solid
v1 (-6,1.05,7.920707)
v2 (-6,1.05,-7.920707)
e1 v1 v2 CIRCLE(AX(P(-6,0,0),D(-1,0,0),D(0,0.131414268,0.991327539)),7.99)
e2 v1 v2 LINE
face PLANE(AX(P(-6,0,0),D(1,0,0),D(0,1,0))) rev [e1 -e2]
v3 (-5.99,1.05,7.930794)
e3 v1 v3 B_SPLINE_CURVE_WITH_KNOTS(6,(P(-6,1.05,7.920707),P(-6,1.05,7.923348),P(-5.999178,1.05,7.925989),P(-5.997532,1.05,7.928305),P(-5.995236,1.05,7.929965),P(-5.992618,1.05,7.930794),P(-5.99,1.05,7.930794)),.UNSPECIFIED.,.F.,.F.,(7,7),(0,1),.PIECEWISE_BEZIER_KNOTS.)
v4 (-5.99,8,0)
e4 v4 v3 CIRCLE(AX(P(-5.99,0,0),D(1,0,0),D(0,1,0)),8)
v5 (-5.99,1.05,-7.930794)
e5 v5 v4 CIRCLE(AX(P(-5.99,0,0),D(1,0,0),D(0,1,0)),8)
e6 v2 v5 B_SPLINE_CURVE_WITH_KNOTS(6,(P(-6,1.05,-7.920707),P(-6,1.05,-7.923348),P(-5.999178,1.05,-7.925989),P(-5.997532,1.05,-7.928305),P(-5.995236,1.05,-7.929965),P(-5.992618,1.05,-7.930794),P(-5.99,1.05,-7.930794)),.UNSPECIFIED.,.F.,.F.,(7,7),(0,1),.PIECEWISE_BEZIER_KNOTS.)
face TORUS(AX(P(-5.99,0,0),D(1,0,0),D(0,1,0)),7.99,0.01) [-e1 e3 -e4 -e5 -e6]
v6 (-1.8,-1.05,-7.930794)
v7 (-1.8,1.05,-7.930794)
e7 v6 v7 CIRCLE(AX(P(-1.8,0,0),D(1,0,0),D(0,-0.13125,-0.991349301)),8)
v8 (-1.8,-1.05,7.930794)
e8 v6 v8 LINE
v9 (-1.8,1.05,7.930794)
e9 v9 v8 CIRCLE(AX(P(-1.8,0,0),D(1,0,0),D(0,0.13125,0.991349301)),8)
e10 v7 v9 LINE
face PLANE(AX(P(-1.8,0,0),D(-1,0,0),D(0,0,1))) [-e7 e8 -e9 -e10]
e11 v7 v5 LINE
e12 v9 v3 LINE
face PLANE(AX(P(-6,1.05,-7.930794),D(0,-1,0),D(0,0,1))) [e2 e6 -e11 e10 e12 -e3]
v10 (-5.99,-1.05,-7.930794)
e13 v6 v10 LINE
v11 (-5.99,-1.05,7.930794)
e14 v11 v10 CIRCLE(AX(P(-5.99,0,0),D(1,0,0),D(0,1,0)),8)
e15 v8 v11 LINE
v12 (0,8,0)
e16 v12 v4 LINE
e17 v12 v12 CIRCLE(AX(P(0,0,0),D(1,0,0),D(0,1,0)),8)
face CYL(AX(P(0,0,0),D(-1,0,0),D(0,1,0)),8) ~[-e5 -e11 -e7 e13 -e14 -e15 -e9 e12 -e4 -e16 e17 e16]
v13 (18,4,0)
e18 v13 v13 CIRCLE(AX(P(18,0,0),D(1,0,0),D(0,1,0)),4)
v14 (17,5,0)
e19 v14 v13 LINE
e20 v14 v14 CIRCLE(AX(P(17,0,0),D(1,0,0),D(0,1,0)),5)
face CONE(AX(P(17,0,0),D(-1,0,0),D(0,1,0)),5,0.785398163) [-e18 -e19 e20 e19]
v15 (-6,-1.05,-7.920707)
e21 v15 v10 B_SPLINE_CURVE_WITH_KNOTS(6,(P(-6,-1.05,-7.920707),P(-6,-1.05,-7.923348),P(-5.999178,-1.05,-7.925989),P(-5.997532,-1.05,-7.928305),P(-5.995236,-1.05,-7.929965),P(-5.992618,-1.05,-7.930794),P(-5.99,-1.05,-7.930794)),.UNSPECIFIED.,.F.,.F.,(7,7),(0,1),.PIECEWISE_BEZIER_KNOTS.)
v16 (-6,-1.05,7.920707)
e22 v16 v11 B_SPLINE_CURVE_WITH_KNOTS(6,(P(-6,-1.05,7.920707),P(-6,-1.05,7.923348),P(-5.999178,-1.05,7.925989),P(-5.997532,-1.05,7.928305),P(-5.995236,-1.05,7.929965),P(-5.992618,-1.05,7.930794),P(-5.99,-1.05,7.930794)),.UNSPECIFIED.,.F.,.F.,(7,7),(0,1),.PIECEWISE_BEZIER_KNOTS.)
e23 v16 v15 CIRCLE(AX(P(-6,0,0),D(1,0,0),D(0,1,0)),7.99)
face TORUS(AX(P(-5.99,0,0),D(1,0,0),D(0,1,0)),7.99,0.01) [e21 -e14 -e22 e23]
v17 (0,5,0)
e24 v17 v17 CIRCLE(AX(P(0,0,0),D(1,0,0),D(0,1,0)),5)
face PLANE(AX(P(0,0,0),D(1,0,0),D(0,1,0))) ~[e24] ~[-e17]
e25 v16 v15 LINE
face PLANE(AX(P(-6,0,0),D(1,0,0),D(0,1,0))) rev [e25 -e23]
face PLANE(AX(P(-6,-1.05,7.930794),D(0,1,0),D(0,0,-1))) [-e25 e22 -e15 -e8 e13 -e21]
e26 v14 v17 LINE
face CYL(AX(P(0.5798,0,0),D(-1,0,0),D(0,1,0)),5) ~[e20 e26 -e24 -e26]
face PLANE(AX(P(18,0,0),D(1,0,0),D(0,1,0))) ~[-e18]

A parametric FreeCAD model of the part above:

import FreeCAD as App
import Part
import Sketcher
Q = App.Units.Quantity


def edges_at(feature, points):
    """Names of the edges that pass closest to the given points."""
    edges = feature.Shape.Edges
    near = lambda p: min(range(len(edges)), key=lambda i: edges[i].distToShape(Part.Vertex(*p))[0])
    return sorted({f"Edge{near(p) + 1}" for p in points})


def add_polygon(sketch, points):
    """Adds a closed chain of lines whose ends are joined by coincident constraints."""
    first, n = sketch.GeometryCount, len(points)
    for a, b in zip(points, points[1:] + points[:1]):
        sketch.addGeometry(Part.LineSegment(App.Vector(*a, 0), App.Vector(*b, 0)), False)
    for i in range(n):
        sketch.addConstraint(Sketcher.Constraint("Coincident", first + i, 2, first + (i + 1) % n, 1))

doc = App.newDocument("Part")
body = doc.addObject("PartDesign::Body", "Body")

# Sketch on XY plane
sketch1 = body.newObject("Sketcher::SketchObject", "Sketch")
sketch1.AttachmentSupport = (doc.getObject("XY_Plane"), [""])
sketch1.MapMode = "FlatFace"
add_polygon(sketch1, [(-6, 8), (-6, 0), (18, 0), (18, 5), (0, 5), (0, 8)])  # lines 0-5
sketch1.addConstraint(Sketcher.Constraint("Vertical", 0))
sketch1.addConstraint(Sketcher.Constraint("Horizontal", 1))
sketch1.addConstraint(Sketcher.Constraint("Vertical", 2))
sketch1.addConstraint(Sketcher.Constraint("Horizontal", 3))
sketch1.addConstraint(Sketcher.Constraint("Vertical", 4))
sketch1.addConstraint(Sketcher.Constraint("Horizontal", 5))
sketch1.addConstraint(Sketcher.Constraint("PointOnObject", 0, 2, -1))
sketch1.addConstraint(Sketcher.Constraint("PointOnObject", 3, 2, -2))
sketch1.addConstraint(Sketcher.Constraint("DistanceX", 3, 2, 3, 1, Q("18 mm")))
sketch1.addConstraint(Sketcher.Constraint("DistanceX", 5, 2, 5, 1, Q("6 mm")))
sketch1.addConstraint(Sketcher.Constraint("DistanceY", 0, 2, 0, 1, Q("8 mm")))
sketch1.addConstraint(Sketcher.Constraint("DistanceY", 2, 1, 2, 2, Q("5 mm")))
revolution = body.newObject("PartDesign::Revolution", "Revolution")
revolution.Profile = sketch1
revolution.ReferenceAxis = (sketch1, ["H_Axis"])
revolution.Angle = 360
doc.recompute()

fillet = body.newObject("PartDesign::Fillet", "Fillet")
fillet.Base = (revolution, edges_at(revolution, [(-6, -8, 0)]))
fillet.Radius = 0.01

# Sketch on YZ plane
sketch2 = body.newObject("Sketcher::SketchObject", "Sketch001")
sketch2.AttachmentSupport = (doc.getObject("YZ_Plane"), [""])
sketch2.MapMode = "FlatFace"
sketch2.AttachmentOffset = App.Placement(App.Vector(0, 0, -6), App.Rotation())
add_polygon(sketch2, [(-1.1, 8), (1.1, 8), (1.1, -8), (-1.1, -8)])  # lines 0-3
sketch2.addConstraint(Sketcher.Constraint("Horizontal", 0))
sketch2.addConstraint(Sketcher.Constraint("Vertical", 1))
sketch2.addConstraint(Sketcher.Constraint("Horizontal", 2))
sketch2.addConstraint(Sketcher.Constraint("Vertical", 3))
sketch2.addConstraint(Sketcher.Constraint("Symmetric", 0, 2, 2, 2, -1, 1))
sketch2.addConstraint(Sketcher.Constraint("DistanceY", 1, 2, 1, 1, Q("16 mm")))
sketch2.addConstraint(Sketcher.Constraint("DistanceX", 0, 1, 0, 2, Q("2.1 mm")))
pocket1 = body.newObject("PartDesign::Pocket", "Pocket")
pocket1.Profile = sketch2
pocket1.Length = 4.2
pocket1.Reversed = True
doc.recompute()

chamfer = body.newObject("PartDesign::Chamfer", "Chamfer")
chamfer.Base = (pocket1, edges_at(pocket1, [(18, -5, 0)]))
chamfer.Size = 1

doc.recompute()
